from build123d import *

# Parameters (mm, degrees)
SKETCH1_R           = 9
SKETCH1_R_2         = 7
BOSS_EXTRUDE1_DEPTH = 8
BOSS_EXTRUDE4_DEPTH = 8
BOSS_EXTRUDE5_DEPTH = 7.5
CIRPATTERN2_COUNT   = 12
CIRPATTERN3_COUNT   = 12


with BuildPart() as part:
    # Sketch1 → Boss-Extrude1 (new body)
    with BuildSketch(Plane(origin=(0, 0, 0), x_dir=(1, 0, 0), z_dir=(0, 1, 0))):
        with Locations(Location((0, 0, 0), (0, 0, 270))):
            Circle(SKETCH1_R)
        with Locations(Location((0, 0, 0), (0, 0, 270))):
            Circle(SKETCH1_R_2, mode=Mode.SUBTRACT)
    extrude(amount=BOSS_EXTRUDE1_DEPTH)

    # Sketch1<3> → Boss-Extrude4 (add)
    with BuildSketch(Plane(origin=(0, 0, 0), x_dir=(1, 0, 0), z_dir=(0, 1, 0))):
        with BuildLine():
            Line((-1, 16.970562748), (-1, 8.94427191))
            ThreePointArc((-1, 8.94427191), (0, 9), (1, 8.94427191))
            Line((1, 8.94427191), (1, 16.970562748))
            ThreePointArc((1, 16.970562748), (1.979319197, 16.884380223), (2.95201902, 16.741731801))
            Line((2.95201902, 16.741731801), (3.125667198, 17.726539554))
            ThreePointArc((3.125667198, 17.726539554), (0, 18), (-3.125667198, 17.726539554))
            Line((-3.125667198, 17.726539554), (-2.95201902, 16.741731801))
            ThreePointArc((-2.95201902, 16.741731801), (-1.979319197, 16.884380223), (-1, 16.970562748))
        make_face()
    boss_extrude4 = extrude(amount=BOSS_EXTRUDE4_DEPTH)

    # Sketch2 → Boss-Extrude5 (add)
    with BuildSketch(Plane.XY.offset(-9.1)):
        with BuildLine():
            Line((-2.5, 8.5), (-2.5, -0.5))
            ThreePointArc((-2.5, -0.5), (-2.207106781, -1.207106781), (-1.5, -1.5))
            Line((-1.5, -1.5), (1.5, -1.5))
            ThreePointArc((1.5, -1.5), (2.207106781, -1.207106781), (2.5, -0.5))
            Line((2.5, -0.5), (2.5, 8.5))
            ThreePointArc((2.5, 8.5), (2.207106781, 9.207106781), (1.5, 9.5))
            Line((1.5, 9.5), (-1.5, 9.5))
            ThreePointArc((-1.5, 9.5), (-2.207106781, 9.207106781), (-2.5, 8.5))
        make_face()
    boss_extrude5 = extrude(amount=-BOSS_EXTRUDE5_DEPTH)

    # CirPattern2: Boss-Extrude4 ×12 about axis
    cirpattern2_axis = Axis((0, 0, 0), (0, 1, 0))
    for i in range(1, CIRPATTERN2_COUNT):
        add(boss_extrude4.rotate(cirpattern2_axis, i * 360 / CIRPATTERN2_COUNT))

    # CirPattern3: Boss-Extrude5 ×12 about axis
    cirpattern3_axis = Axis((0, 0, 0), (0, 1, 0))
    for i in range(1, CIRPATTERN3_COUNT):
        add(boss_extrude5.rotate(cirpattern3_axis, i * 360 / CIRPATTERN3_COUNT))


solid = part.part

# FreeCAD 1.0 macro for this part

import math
import FreeCAD as App
import Part
import Sketcher
Q = App.Units.Quantity

doc = App.newDocument("Part")
body = doc.addObject("PartDesign::Body", "Body")

# Sketch on XZ plane
sketch1 = body.newObject("Sketcher::SketchObject", "Sketch")
sketch1.AttachmentSupport = (doc.getObject("XZ_Plane"), [""])
sketch1.MapMode = "FlatFace"
sketch1.addGeometry([
    Part.Circle(App.Vector(0, 0, 0), App.Vector(0, 0, 1), 9),
    Part.Circle(App.Vector(0, 0, 0), App.Vector(0, 0, 1), 7),
], False)
sketch1.addConstraint([
    Sketcher.Constraint("Coincident", 0, 3, -1, 1),
    Sketcher.Constraint("Coincident", 1, 3, -1, 1),
    Sketcher.Constraint("Diameter", 0, Q("18 mm")),
    Sketcher.Constraint("Diameter", 1, Q("14 mm")),
])
pad1 = body.newObject("PartDesign::Pad", "Pad")
pad1.Profile = sketch1
pad1.Length = 8
pad1.Reversed = True

# Sketch on XZ plane
sketch2 = body.newObject("Sketcher::SketchObject", "Sketch001")
sketch2.AttachmentSupport = (doc.getObject("XZ_Plane"), [""])
sketch2.MapMode = "FlatFace"
sketch2.addGeometry([
    Part.LineSegment(App.Vector(-1, -17, 0), App.Vector(-1, -8.9, 0)),  # 0
    Part.ArcOfCircle(Part.Circle(App.Vector(0, 0, 0), App.Vector(0, 0, 1), 9), math.radians(-96.38), math.radians(-83.62)),  # 1
    Part.LineSegment(App.Vector(1, -8.9, 0), App.Vector(1, -17, 0)),  # 2
    Part.ArcOfCircle(Part.Circle(App.Vector(0, 0, 0), App.Vector(0, 0, 1), 17), math.radians(-86.63), math.radians(-80)),  # 3
    Part.LineSegment(App.Vector(3, -16.7, 0), App.Vector(3.1, -17.7, 0)),  # 4
    Part.ArcOfCircle(Part.Circle(App.Vector(0, 0, 0), App.Vector(0, 0, 1), 18), math.radians(-100), math.radians(-80)),  # 5
    Part.LineSegment(App.Vector(-3.1, -17.7, 0), App.Vector(-3, -16.7, 0)),  # 6
    Part.ArcOfCircle(Part.Circle(App.Vector(0, 0, 0), App.Vector(0, 0, 1), 17), math.radians(-100), math.radians(-93.37)),  # 7
], False)
sketch2.addConstraint([
    Sketcher.Constraint("Coincident", 0, 2, 1, 1),
    Sketcher.Constraint("Coincident", 1, 2, 2, 1),
    Sketcher.Constraint("Coincident", 2, 2, 3, 1),
    Sketcher.Constraint("Coincident", 3, 2, 4, 1),
    Sketcher.Constraint("Coincident", 4, 2, 5, 2),
    Sketcher.Constraint("Coincident", 5, 1, 6, 1),
    Sketcher.Constraint("Coincident", 6, 2, 7, 1),
    Sketcher.Constraint("Coincident", 7, 2, 0, 1),
    Sketcher.Constraint("Vertical", 0),
    Sketcher.Constraint("Vertical", 2),
    Sketcher.Constraint("Coincident", 1, 3, -1, 1),
    Sketcher.Constraint("Coincident", 3, 3, -1, 1),
    Sketcher.Constraint("Coincident", 5, 3, -1, 1),
    Sketcher.Constraint("Coincident", 7, 3, -1, 1),
    Sketcher.Constraint("Equal", 3, 7),
    Sketcher.Constraint("Horizontal", 0, 2, 1, 2),
    Sketcher.Constraint("Horizontal", 4, 2, 5, 1),
    Sketcher.Constraint("Horizontal", 3, 2, 6, 2),
    Sketcher.Constraint("Radius", 1, Q("9 mm")),
    Sketcher.Constraint("Radius", 3, Q("17 mm")),
    Sketcher.Constraint("Radius", 5, Q("18 mm")),
    Sketcher.Constraint("Angle", 4, Q("-80 deg")),
    Sketcher.Constraint("DistanceX", 0, 2, -1, 1, Q("1 mm")),
    Sketcher.Constraint("DistanceX", -1, 1, 3, 2, Q("2.952019 mm")),
])
pad2 = body.newObject("PartDesign::Pad", "Pad001")
pad2.Profile = sketch2
pad2.Length = 8
pad2.Reversed = True

# Sketch on XY plane
sketch3 = body.newObject("Sketcher::SketchObject", "Sketch002")
sketch3.AttachmentSupport = (doc.getObject("XY_Plane"), [""])
sketch3.MapMode = "FlatFace"
sketch3.AttachmentOffset = App.Placement(App.Vector(0, 0, -9.1), App.Rotation())
sketch3.addGeometry([
    Part.LineSegment(App.Vector(-2.5, 8.5, 0), App.Vector(-2.5, -0.5, 0)),  # 0
    Part.ArcOfCircle(Part.Circle(App.Vector(-1.5, -0.5, 0), App.Vector(0, 0, 1), 1), math.radians(-180), math.radians(-90)),  # 1
    Part.LineSegment(App.Vector(-1.5, -1.5, 0), App.Vector(1.5, -1.5, 0)),  # 2
    Part.ArcOfCircle(Part.Circle(App.Vector(1.5, -0.5, 0), App.Vector(0, 0, 1), 1), math.radians(-90), math.radians(0)),  # 3
    Part.LineSegment(App.Vector(2.5, -0.5, 0), App.Vector(2.5, 8.5, 0)),  # 4
    Part.ArcOfCircle(Part.Circle(App.Vector(1.5, 8.5, 0), App.Vector(0, 0, 1), 1), math.radians(0), math.radians(90)),  # 5
    Part.LineSegment(App.Vector(1.5, 9.5, 0), App.Vector(-1.5, 9.5, 0)),  # 6
    Part.ArcOfCircle(Part.Circle(App.Vector(-1.5, 8.5, 0), App.Vector(0, 0, 1), 1), math.radians(90), math.radians(180)),  # 7
], False)
sketch3.addConstraint([
    Sketcher.Constraint("Tangent", 0, 2, 1, 1),
    Sketcher.Constraint("Tangent", 1, 2, 2, 1),
    Sketcher.Constraint("Tangent", 2, 2, 3, 1),
    Sketcher.Constraint("Tangent", 3, 2, 4, 1),
    Sketcher.Constraint("Tangent", 4, 2, 5, 1),
    Sketcher.Constraint("Tangent", 5, 2, 6, 1),
    Sketcher.Constraint("Tangent", 6, 2, 7, 1),
    Sketcher.Constraint("Tangent", 7, 2, 0, 1),
    Sketcher.Constraint("Vertical", 0),
    Sketcher.Constraint("Horizontal", 2),
    Sketcher.Constraint("Vertical", 4),
    Sketcher.Constraint("Horizontal", 6),
    Sketcher.Constraint("Equal", 1, 3),
    Sketcher.Constraint("Equal", 3, 5),
    Sketcher.Constraint("Equal", 5, 7),
    Sketcher.Constraint("Radius", 1, Q("1 mm")),
    Sketcher.Constraint("DistanceX", 2, 1, 2, 2, Q("3 mm")),
    Sketcher.Constraint("DistanceY", 0, 2, 0, 1, Q("9 mm")),
    Sketcher.Constraint("DistanceX", 1, 3, -1, 1, Q("1.5 mm")),
    Sketcher.Constraint("DistanceY", 1, 3, -1, 1, Q("0.5 mm")),
])
pad3 = body.newObject("PartDesign::Pad", "Pad002")
pad3.Profile = sketch3
pad3.Length = 7.5
pad3.Reversed = True
doc.recompute()

polarpattern = body.newObject("PartDesign::PolarPattern", "PolarPattern")
polarpattern.Originals = [pad2]
polarpattern.Axis = (doc.getObject("Y_Axis"), [""])
polarpattern.Angle = 360
polarpattern.Occurrences = 12
body.Tip = polarpattern
doc.recompute()

polarpattern2 = body.newObject("PartDesign::PolarPattern", "PolarPattern001")
polarpattern2.Originals = [pad3]
polarpattern2.Axis = (doc.getObject("Y_Axis"), [""])
polarpattern2.Angle = 360
polarpattern2.Occurrences = 12
body.Tip = polarpattern2

doc.recompute()
